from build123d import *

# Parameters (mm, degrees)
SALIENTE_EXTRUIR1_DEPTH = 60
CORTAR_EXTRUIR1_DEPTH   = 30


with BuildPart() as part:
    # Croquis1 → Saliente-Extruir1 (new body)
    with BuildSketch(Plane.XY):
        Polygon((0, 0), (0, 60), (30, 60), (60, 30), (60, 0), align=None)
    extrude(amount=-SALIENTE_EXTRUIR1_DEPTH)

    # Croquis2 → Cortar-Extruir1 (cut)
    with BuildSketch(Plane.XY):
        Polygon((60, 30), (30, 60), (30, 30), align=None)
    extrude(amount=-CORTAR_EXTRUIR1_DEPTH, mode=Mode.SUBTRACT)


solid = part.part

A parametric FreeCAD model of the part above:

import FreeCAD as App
import Part
import Sketcher
from FreeCAD import Vector
Q = App.Units.Quantity


def add_polygon(sketch, points):
    """Adds a closed chain of lines whose ends are joined by coincident constraints."""
    first, n = sketch.GeometryCount, len(points)
    for a, b in zip(points, points[1:] + points[:1]):
        sketch.addGeometry(Part.LineSegment(App.Vector(*a, 0), App.Vector(*b, 0)), False)
    for i in range(n):
        sketch.addConstraint(Sketcher.Constraint("Coincident", first + i, 2, first + (i + 1) % n, 1))

doc = App.newDocument("Part")
body = doc.addObject("PartDesign::Body", "Body")

# Sketch on XY plane
sketch1 = doc.addObject("Sketcher::SketchObject", "Sketch")
body.addObject(sketch1)
sketch1.AttachmentSupport = (doc.XY_Plane, [""])
sketch1.MapMode = "FlatFace"
add_polygon(sketch1, [(0, 60), (0, 0), (60, 0), (60, 30), (30, 60)])  # lines 0-4
sketch1.addConstraint([
    Sketcher.Constraint("Vertical", 0),
    Sketcher.Constraint("Horizontal", 1),
    Sketcher.Constraint("Vertical", 2),
    Sketcher.Constraint("Horizontal", 4),
    Sketcher.Constraint("Coincident", 0, 2, -1, 1),
    Sketcher.Constraint("Equal", 1, 0),
    Sketcher.Constraint("Equal", 4, 2),
    Sketcher.Constraint("DistanceX", 1, 1, 1, 2, Q("60 mm")),
    Sketcher.Constraint("DistanceX", 4, 2, 4, 1, Q("30 mm")),
])
pad1 = doc.addObject("PartDesign::Pad", "Pad")
body.addObject(pad1)
pad1.Profile = sketch1
pad1.Length = 60
pad1.Reversed = True

# Sketch on XY plane
sketch2 = doc.addObject("Sketcher::SketchObject", "Sketch001")
body.addObject(sketch2)
sketch2.AttachmentSupport = (doc.XY_Plane, [""])
sketch2.MapMode = "FlatFace"
add_polygon(sketch2, [(60, 30), (30, 60), (30, 30)])  # lines 0-2
sketch2.addConstraint([
    Sketcher.Constraint("Vertical", 1),
    Sketcher.Constraint("Horizontal", 2),
    Sketcher.Constraint("Equal", 2, 1),
    Sketcher.Constraint("DistanceX", 2, 1, 2, 2, Q("30 mm")),
    Sketcher.Constraint("DistanceX", -1, 1, 0, 2, Q("30 mm")),
    Sketcher.Constraint("DistanceY", -1, 1, 0, 2, Q("60 mm")),
])
pocket1 = doc.addObject("PartDesign::Pocket", "Pocket")
body.addObject(pocket1)
pocket1.Profile = sketch2
pocket1.Length = 30

doc.recompute()
